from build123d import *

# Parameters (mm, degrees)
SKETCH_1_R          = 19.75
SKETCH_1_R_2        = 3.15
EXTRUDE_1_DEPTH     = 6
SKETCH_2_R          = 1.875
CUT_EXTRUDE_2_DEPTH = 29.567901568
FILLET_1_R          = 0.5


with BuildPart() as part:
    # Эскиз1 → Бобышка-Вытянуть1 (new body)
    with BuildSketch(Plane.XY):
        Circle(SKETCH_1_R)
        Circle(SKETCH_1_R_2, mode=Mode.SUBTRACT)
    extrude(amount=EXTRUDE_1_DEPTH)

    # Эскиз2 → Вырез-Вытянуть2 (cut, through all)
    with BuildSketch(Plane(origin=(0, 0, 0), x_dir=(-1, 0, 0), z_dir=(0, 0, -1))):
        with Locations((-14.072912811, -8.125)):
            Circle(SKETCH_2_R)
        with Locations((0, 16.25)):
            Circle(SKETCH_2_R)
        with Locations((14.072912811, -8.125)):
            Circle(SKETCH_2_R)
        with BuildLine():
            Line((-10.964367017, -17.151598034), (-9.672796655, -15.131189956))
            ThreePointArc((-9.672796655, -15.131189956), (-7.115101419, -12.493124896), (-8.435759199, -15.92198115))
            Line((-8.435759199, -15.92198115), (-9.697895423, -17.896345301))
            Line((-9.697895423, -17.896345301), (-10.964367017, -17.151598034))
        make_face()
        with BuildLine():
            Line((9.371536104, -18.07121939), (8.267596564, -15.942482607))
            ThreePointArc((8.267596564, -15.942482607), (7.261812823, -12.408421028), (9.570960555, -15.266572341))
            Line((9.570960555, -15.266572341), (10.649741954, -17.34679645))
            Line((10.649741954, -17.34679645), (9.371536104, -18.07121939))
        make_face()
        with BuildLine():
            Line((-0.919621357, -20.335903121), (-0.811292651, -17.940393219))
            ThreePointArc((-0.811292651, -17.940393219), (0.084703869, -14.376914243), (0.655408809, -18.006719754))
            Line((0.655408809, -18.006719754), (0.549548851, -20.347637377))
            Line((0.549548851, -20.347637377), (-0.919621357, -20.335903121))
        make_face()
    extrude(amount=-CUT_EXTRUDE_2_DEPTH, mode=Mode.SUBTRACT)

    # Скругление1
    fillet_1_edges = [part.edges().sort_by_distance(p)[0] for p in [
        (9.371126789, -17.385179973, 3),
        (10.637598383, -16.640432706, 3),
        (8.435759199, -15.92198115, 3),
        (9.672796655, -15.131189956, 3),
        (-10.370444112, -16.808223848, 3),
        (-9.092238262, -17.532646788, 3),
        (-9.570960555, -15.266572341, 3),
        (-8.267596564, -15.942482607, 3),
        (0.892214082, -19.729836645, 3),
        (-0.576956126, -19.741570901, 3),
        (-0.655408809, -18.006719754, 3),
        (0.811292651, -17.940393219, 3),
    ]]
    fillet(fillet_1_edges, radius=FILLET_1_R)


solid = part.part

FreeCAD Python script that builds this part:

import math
import FreeCAD as App
import Part
import Sketcher

V = App.Vector


def edges_at(feature, points):
    """Names of the edges that pass closest to the given points."""
    edges = feature.Shape.Edges
    near = lambda p: min(range(len(edges)), key=lambda i: edges[i].distToShape(Part.Vertex(*p))[0])
    return sorted({f"Edge{near(p) + 1}" for p in points})

doc = App.newDocument("Part")
body = doc.addObject("PartDesign::Body", "Body")

# Sketch on XY plane
sketch1 = body.newObject("Sketcher::SketchObject", "Sketch")
sketch1.AttachmentSupport = (doc.getObject("XY_Plane"), [""])
sketch1.MapMode = "FlatFace"
sketch1.addGeometry(Part.Circle(V(0, 0, 0), V(0, 0, 1), 19.75), False)
sketch1.addGeometry(Part.Circle(V(0, 0, 0), V(0, 0, 1), 3.15), False)
sketch1.addConstraint(Sketcher.Constraint("Coincident", 0, 3, -1, 1))
sketch1.addConstraint(Sketcher.Constraint("Coincident", 1, 3, -1, 1))
sketch1.addConstraint(Sketcher.Constraint("Diameter", 0, 39.5))
sketch1.addConstraint(Sketcher.Constraint("Diameter", 1, 6.3))
pad1 = body.newObject("PartDesign::Pad", "Pad")
pad1.Profile = sketch1
pad1.Length = 6

# Sketch on XY plane
sketch2 = body.newObject("Sketcher::SketchObject", "Sketch001")
sketch2.AttachmentSupport = (doc.getObject("XY_Plane"), [""])
sketch2.MapMode = "FlatFace"
sketch2.addGeometry(Part.Circle(V(14.072913, -8.125, 0), V(0, 0, 1), 1.875), False)
sketch2.addGeometry(Part.Circle(V(0, 16.25, 0), V(0, 0, 1), 1.875), False)
sketch2.addGeometry(Part.Circle(V(-14.072913, -8.125, 0), V(0, 0, 1), 1.875), False)
sketch2.addGeometry(Part.LineSegment(V(9.672797, -15.13119, 0), V(10.964367, -17.151598, 0)), False)
sketch2.addGeometry(Part.LineSegment(V(10.964367, -17.151598, 0), V(9.697895, -17.896345, 0)), False)
sketch2.addGeometry(Part.LineSegment(V(9.697895, -17.896345, 0), V(8.435759, -15.921981, 0)), False)
sketch2.addGeometry(Part.ArcOfCircle(Part.Circle(V(8.125, -14.072913, 0), V(0, 0, 1), 1.875), math.radians(-34.361641), math.radians(279.540123)), False)
sketch2.addGeometry(Part.LineSegment(V(-8.267597, -15.942483, 0), V(-9.371536, -18.071219, 0)), False)
sketch2.addGeometry(Part.LineSegment(V(-9.371536, -18.071219, 0), V(-10.649742, -17.346796, 0)), False)
sketch2.addGeometry(Part.LineSegment(V(-10.649742, -17.346796, 0), V(-9.570961, -15.266572, 0)), False)
sketch2.addGeometry(Part.ArcOfCircle(Part.Circle(V(-8.125, -14.072913, 0), V(0, 0, 1), 1.875), math.radians(-94.361641), math.radians(219.540123)), False)
sketch2.addGeometry(Part.LineSegment(V(0.811293, -17.940393, 0), V(0.919621, -20.335903, 0)), False)
sketch2.addGeometry(Part.LineSegment(V(0.919621, -20.335903, 0), V(-0.549549, -20.347637, 0)), False)
sketch2.addGeometry(Part.LineSegment(V(-0.549549, -20.347637, 0), V(-0.655409, -18.00672, 0)), False)
sketch2.addGeometry(Part.ArcOfCircle(Part.Circle(V(0, -16.25, 0), V(0, 0, 1), 1.875), math.radians(-64.361641), math.radians(249.540123)), False)
sketch2.addConstraint(Sketcher.Constraint("Coincident", 3, 2, 4, 1))
sketch2.addConstraint(Sketcher.Constraint("Coincident", 4, 2, 5, 1))
sketch2.addConstraint(Sketcher.Constraint("Coincident", 5, 2, 6, 2))
sketch2.addConstraint(Sketcher.Constraint("Coincident", 6, 1, 3, 1))
sketch2.addConstraint(Sketcher.Constraint("Coincident", 7, 2, 8, 1))
sketch2.addConstraint(Sketcher.Constraint("Coincident", 8, 2, 9, 1))
sketch2.addConstraint(Sketcher.Constraint("Coincident", 9, 2, 10, 2))
sketch2.addConstraint(Sketcher.Constraint("Coincident", 10, 1, 7, 1))
sketch2.addConstraint(Sketcher.Constraint("Coincident", 11, 2, 12, 1))
sketch2.addConstraint(Sketcher.Constraint("Coincident", 12, 2, 13, 1))
sketch2.addConstraint(Sketcher.Constraint("Coincident", 13, 2, 14, 2))
sketch2.addConstraint(Sketcher.Constraint("Coincident", 14, 1, 11, 1))
sketch2.addConstraint(Sketcher.Constraint("PointOnObject", 1, 3, -2))
sketch2.addConstraint(Sketcher.Constraint("PointOnObject", 14, 3, -2))
sketch2.addConstraint(Sketcher.Constraint("Diameter", 0, 3.75))
sketch2.addConstraint(Sketcher.Constraint("Diameter", 1, 3.75))
sketch2.addConstraint(Sketcher.Constraint("Diameter", 2, 3.75))
sketch2.addConstraint(Sketcher.Constraint("Radius", 6, 1.875))
sketch2.addConstraint(Sketcher.Constraint("Radius", 10, 1.875))
sketch2.addConstraint(Sketcher.Constraint("Radius", 14, 1.875))
sketch2.addConstraint(Sketcher.Constraint("DistanceY", 14, 3, 1, 3, 32.5))
sketch2.addConstraint(Sketcher.Constraint("DistanceY", -1, 1, 1, 3, 16.25))
sketch2.addConstraint(Sketcher.Constraint("DistanceX", 10, 3, 6, 3, 16.25))
sketch2.addConstraint(Sketcher.Constraint("DistanceY", 0, 3, -1, 1, 8.125))
sketch2.addConstraint(Sketcher.Constraint("DistanceY", 2, 3, -1, 1, 8.125))
sketch2.addConstraint(Sketcher.Constraint("DistanceX", -1, 1, 6, 3, 8.125))
sketch2.addConstraint(Sketcher.Constraint("DistanceY", 3, 2, -1, 1, 17.151598))
sketch2.addConstraint(Sketcher.Constraint("DistanceX", 6, 1, 4, 2, 0.025099))
sketch2.addConstraint(Sketcher.Constraint("DistanceX", 13, 2, 14, 1, 1.466701))
sketch2.addConstraint(Sketcher.Constraint("Distance", 3, 2.397958))
sketch2.addConstraint(Sketcher.Constraint("Distance", 5, 2.34331))
sketch2.addConstraint(Sketcher.Constraint("Distance", 7, 2.397958))
sketch2.addConstraint(Sketcher.Constraint("Distance", 9, 2.34331))
sketch2.addConstraint(Sketcher.Constraint("Distance", 11, 2.397958))
sketch2.addConstraint(Sketcher.Constraint("Distance", 13, 2.34331))
sketch2.addConstraint(Sketcher.Constraint("DistanceX", -1, 1, 5, 2, 8.435759))
sketch2.addConstraint(Sketcher.Constraint("DistanceY", 5, 2, -1, 1, 15.921981))
sketch2.addConstraint(Sketcher.Constraint("DistanceY", 6, 1, -1, 1, 15.13119))
sketch2.addConstraint(Sketcher.Constraint("DistanceY", 7, 2, -1, 1, 18.071219))
sketch2.addConstraint(Sketcher.Constraint("DistanceX", 8, 2, -1, 1, 10.649742))
sketch2.addConstraint(Sketcher.Constraint("DistanceX", 9, 2, -1, 1, 9.570961))
sketch2.addConstraint(Sketcher.Constraint("DistanceX", -1, 1, 11, 2, 0.919621))
sketch2.addConstraint(Sketcher.Constraint("DistanceX", 12, 2, -1, 1, 0.549549))
sketch2.addConstraint(Sketcher.Constraint("DistanceX", 13, 2, -1, 1, 0.655409))
sketch2.addConstraint(Sketcher.Constraint("DistanceX", 2, 3, 3, 2, 25.03728))
sketch2.addConstraint(Sketcher.Constraint("DistanceY", 10, 1, 9, 2, 0.67591))
sketch2.addConstraint(Sketcher.Constraint("DistanceX", 7, 2, 10, 1, 1.10394))
sketch2.addConstraint(Sketcher.Constraint("DistanceX", -1, 1, 0, 3, 14.072913))
pocket1 = body.newObject("PartDesign::Pocket", "Pocket")
pocket1.Profile = sketch2
pocket1.Type = "ThroughAll"
pocket1.Reversed = True
doc.recompute()

fillet = body.newObject("PartDesign::Fillet", "Fillet")
fillet.Base = (pocket1, edges_at(pocket1, [
    (9.371, -17.385, 3),
    (10.638, -16.64, 3),
    (8.436, -15.922, 3),
    (9.673, -15.131, 3),
    (-10.37, -16.808, 3),
    (-9.092, -17.533, 3),
    (-9.571, -15.267, 3),
    (-8.268, -15.942, 3),
    (0.892, -19.73, 3),
    (-0.577, -19.742, 3),
    (-0.655, -18.007, 3),
    (0.811, -17.94, 3),
]))
fillet.Radius = 0.5

doc.recompute()
